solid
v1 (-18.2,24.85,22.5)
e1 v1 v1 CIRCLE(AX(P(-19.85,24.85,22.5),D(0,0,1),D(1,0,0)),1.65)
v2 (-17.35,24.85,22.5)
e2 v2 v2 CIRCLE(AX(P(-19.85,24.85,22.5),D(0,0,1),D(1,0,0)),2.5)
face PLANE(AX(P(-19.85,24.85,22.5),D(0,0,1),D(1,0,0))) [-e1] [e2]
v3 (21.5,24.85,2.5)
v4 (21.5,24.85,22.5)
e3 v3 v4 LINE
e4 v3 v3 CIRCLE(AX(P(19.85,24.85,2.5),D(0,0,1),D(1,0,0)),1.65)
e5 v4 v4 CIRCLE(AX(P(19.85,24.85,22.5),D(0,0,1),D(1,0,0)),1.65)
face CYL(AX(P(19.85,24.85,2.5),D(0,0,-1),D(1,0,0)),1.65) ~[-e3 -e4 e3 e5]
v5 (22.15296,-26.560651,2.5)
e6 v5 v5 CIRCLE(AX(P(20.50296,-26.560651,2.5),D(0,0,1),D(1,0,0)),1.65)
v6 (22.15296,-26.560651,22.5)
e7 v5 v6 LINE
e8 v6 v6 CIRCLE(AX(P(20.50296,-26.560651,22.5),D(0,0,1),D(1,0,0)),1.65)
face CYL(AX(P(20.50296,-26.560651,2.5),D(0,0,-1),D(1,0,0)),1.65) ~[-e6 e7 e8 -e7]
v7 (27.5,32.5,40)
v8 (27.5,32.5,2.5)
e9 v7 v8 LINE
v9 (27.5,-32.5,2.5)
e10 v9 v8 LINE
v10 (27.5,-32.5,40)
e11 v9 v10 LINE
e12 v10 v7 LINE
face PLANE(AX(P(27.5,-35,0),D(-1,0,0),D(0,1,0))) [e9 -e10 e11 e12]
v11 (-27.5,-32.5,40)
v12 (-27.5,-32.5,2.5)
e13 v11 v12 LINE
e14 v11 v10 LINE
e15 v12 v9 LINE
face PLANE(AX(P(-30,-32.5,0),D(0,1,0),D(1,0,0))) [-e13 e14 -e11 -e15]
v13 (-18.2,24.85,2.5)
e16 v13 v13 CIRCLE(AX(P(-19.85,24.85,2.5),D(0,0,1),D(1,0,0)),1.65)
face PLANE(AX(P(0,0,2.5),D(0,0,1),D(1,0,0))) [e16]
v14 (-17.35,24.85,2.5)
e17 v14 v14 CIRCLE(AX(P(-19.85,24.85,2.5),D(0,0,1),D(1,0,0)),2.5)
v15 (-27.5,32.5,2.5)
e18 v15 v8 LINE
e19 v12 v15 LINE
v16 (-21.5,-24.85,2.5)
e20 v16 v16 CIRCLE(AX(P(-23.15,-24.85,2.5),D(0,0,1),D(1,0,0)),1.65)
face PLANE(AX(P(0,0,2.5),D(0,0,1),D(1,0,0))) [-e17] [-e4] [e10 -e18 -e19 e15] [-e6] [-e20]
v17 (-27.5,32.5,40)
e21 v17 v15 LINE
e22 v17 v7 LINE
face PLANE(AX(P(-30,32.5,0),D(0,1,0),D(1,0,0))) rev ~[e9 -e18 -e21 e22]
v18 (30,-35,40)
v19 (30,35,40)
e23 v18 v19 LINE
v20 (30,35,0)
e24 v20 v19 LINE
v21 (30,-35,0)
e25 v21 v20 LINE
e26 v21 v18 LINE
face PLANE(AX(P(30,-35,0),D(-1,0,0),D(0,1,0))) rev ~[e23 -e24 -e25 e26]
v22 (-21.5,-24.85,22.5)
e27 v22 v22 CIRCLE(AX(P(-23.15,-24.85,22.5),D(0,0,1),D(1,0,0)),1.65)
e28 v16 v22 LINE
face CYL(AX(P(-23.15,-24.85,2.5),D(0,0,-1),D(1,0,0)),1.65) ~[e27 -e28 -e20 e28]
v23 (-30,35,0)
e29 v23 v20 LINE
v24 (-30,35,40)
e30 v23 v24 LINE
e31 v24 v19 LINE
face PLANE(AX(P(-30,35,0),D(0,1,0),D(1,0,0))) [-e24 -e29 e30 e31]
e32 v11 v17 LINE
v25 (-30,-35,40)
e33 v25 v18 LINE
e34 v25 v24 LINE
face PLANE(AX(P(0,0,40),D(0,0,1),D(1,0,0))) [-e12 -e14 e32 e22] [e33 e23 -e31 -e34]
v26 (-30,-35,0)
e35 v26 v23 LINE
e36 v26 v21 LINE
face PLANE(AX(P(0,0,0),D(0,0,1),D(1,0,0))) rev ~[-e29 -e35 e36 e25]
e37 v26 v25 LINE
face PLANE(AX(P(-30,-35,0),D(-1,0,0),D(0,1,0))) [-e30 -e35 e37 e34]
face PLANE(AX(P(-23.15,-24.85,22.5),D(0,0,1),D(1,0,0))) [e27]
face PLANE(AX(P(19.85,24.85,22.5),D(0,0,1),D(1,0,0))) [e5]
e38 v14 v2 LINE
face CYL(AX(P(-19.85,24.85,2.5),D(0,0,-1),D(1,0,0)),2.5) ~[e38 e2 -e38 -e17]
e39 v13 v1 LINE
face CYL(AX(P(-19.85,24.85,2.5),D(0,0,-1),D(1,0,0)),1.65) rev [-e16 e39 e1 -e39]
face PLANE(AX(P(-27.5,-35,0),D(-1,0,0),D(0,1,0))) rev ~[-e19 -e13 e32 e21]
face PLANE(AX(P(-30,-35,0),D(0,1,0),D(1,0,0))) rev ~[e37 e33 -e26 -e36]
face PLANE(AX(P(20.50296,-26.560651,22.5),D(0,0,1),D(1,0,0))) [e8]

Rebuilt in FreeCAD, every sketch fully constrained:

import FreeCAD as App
import Part
import Sketcher
from FreeCAD import Vector
Q = App.Units.Quantity


def faces_at(feature, points):
    """Names of the faces that lie closest to the given points."""
    faces = feature.Shape.Faces
    near = lambda p: min(range(len(faces)), key=lambda i: faces[i].distToShape(Part.Vertex(*p))[0])
    return sorted({f"Face{near(p) + 1}" for p in points})


def add_polygon(sketch, points):
    """Adds a closed chain of lines whose ends are joined by coincident constraints."""
    first, n = sketch.GeometryCount, len(points)
    for a, b in zip(points, points[1:] + points[:1]):
        sketch.addGeometry(Part.LineSegment(App.Vector(*a, 0), App.Vector(*b, 0)), False)
    for i in range(n):
        sketch.addConstraint(Sketcher.Constraint("Coincident", first + i, 2, first + (i + 1) % n, 1))

doc = App.newDocument("Part")
body = doc.addObject("PartDesign::Body", "Body")

sketch1 = body.newObject("Sketcher::SketchObject", "Sketch")
sketch1.AttachmentSupport = (doc.getObject("XY_Plane"), [""])
sketch1.MapMode = "FlatFace"
add_polygon(sketch1, [(-30, 35), (-30, -35), (30, -35), (30, 35)])
sketch1.addConstraint([
    Sketcher.Constraint("Vertical", 0),
    Sketcher.Constraint("Horizontal", 1),
    Sketcher.Constraint("Vertical", 2),
    Sketcher.Constraint("Horizontal", 3),
    Sketcher.Constraint("Symmetric", 0, 2, 2, 2, -1, 1),
    Sketcher.Constraint("DistanceX", 1, 1, 1, 2, Q("60 mm")),
    Sketcher.Constraint("DistanceY", 0, 2, 0, 1, Q("70 mm")),
])
pad1 = body.newObject("PartDesign::Pad", "Pad")
pad1.Profile = sketch1
pad1.Length = 40
doc.recompute()

thickness = body.newObject("PartDesign::Thickness", "Thickness")
thickness.Base = (pad1, faces_at(pad1, [(0, 0, 40)]))
thickness.Value = 2.5
thickness.Reversed = True
thickness.Join = "Arc"

sketch2 = body.newObject("Sketcher::SketchObject", "Sketch001")
sketch2.AttachmentSupport = (doc.getObject("XY_Plane"), [""])
sketch2.MapMode = "FlatFace"
sketch2.AttachmentOffset = App.Placement(Vector(0, 0, 2.5), App.Rotation())
sketch2.addGeometry([
    Part.Circle(Vector(-23.15, -24.85, 0), Vector(0, 0, 1), 1.65),
    Part.Circle(Vector(19.85, 24.85, 0), Vector(0, 0, 1), 1.65),
    Part.Circle(Vector(20.50296, -26.560651, 0), Vector(0, 0, 1), 1.65),
    Part.Circle(Vector(-19.85, 24.85, 0), Vector(0, 0, 1), 2.5),
    Part.Circle(Vector(-19.85, 24.85, 0), Vector(0, 0, 1), 1.65),
], False)
sketch2.addConstraint([
    Sketcher.Constraint("Coincident", 4, 3, 3, 3),
    Sketcher.Constraint("Equal", 0, 1),
    Sketcher.Constraint("Equal", 1, 2),
    Sketcher.Constraint("Equal", 2, 4),
    Sketcher.Constraint("Symmetric", 1, 3, 3, 3, -2),
    Sketcher.Constraint("Diameter", 3, Q("5 mm")),
    Sketcher.Constraint("Diameter", 0, Q("3.3 mm")),
    Sketcher.Constraint("DistanceX", 0, 3, 1, 3, Q("43 mm")),
    Sketcher.Constraint("DistanceY", 0, 3, 1, 3, Q("49.7 mm")),
    Sketcher.Constraint("DistanceX", 3, 3, 1, 3, Q("39.7 mm")),
    Sketcher.Constraint("DistanceY", 0, 3, -1, 1, Q("24.85 mm")),
    Sketcher.Constraint("DistanceX", -1, 1, 2, 3, Q("20.50296 mm")),
    Sketcher.Constraint("DistanceY", 2, 3, -1, 1, Q("26.560651 mm")),
])
pad2 = body.newObject("PartDesign::Pad", "Pad001")
pad2.Profile = sketch2
pad2.Length = 20

doc.recompute()
